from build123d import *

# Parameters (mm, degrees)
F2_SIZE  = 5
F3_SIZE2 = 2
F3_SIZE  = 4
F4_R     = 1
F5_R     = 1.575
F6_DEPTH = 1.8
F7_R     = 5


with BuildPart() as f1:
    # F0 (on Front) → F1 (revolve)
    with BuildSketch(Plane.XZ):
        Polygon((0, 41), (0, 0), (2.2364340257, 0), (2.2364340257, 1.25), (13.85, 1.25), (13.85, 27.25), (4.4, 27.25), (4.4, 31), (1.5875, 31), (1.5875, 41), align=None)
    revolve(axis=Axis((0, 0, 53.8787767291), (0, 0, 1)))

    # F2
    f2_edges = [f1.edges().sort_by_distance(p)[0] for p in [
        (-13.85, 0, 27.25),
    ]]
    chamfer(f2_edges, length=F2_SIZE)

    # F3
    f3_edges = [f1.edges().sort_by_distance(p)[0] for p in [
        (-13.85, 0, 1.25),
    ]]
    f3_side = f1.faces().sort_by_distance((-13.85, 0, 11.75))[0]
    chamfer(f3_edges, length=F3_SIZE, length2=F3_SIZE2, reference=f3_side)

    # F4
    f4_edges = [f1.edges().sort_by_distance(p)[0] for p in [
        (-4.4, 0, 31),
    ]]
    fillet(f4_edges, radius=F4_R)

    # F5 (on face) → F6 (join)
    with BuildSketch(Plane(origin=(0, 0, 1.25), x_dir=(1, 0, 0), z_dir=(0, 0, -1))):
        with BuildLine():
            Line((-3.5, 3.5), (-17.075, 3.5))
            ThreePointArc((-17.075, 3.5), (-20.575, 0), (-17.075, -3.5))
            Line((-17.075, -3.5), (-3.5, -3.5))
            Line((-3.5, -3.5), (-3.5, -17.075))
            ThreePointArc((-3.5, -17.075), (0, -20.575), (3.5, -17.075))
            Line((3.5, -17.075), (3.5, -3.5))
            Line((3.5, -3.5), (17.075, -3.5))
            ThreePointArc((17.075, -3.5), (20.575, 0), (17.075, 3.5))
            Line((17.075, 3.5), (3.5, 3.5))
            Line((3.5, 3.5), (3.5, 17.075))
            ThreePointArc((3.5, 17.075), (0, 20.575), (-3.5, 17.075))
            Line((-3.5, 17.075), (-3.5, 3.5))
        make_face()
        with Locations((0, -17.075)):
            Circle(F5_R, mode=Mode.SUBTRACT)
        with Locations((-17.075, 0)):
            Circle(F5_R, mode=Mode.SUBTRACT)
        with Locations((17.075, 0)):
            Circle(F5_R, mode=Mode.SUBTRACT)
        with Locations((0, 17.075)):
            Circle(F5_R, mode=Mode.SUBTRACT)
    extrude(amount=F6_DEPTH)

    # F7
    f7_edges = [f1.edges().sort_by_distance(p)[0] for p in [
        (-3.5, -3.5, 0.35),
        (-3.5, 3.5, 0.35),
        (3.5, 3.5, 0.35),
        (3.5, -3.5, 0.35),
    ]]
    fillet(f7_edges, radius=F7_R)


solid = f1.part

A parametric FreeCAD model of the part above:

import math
import FreeCAD as App
import Part
import Sketcher


def edges_at(feature, points):
    """Names of the edges that pass closest to the given points."""
    edges = feature.Shape.Edges
    near = lambda p: min(range(len(edges)), key=lambda i: edges[i].distToShape(Part.Vertex(*p))[0])
    return sorted({f"Edge{near(p) + 1}" for p in points})

doc = App.newDocument("Part")
params = doc.addObject("Spreadsheet::Sheet", "Params")
for row, (alias, value) in enumerate([
    ("sketch1_height", "41 mm"),
    ("sketch1_height2", "26 mm"),
    ("sketch1_height3", "10 mm"),
    ("sketch1_width", "9.45 mm"),
    ("sketch1_height4", "1.25 mm"),
    ("revolution_angle", "360 deg"),
    ("chamfer_size", "5 mm"),
    ("chamfer2_size", "4 mm"),
    ("chamfer2_size2", "2 mm"),
    ("fillet_radius", "1 mm"),
    ("sketch2_radius", "3.5 mm"),
    ("sketch2_diameter", "3.15 mm"),
    ("pad1_length", "1.8 mm"),
    ("fillet2_radius", "5 mm"),
], start=1):
    params.set(f"A{row}", alias)
    params.set(f"B{row}", "=" + value)
    params.setAlias(f"B{row}", alias)

body = doc.addObject("PartDesign::Body", "Body")

# Sketch on XZ plane
sketch1 = body.newObject("Sketcher::SketchObject", "Sketch")
sketch1.AttachmentSupport = (doc.getObject("XZ_Plane"), [""])
sketch1.MapMode = "FlatFace"
sketch1.addGeometry([
    Part.LineSegment(App.Vector(0, 41, 0), App.Vector(0, 0, 0)),  # 0
    Part.LineSegment(App.Vector(0, 0, 0), App.Vector(2.2, 0, 0)),  # 1
    Part.LineSegment(App.Vector(2.2, 0, 0), App.Vector(2.2, 1.2, 0)),  # 2
    Part.LineSegment(App.Vector(2.2, 1.2, 0), App.Vector(13.8, 1.2, 0)),  # 3
    Part.LineSegment(App.Vector(13.8, 1.2, 0), App.Vector(13.8, 27.2, 0)),  # 4
    Part.LineSegment(App.Vector(13.8, 27.2, 0), App.Vector(4.4, 27.2, 0)),  # 5
    Part.LineSegment(App.Vector(4.4, 27.2, 0), App.Vector(4.4, 31, 0)),  # 6
    Part.LineSegment(App.Vector(4.4, 31, 0), App.Vector(1.6, 31, 0)),  # 7
    Part.LineSegment(App.Vector(1.6, 31, 0), App.Vector(1.6, 41, 0)),  # 8
    Part.LineSegment(App.Vector(1.6, 41, 0), App.Vector(0, 41, 0)),  # 9
], False)
sketch1.addConstraint([
    Sketcher.Constraint("Coincident", 0, 2, 1, 1),
    Sketcher.Constraint("Coincident", 1, 2, 2, 1),
    Sketcher.Constraint("Coincident", 2, 2, 3, 1),
    Sketcher.Constraint("Coincident", 3, 2, 4, 1),
    Sketcher.Constraint("Coincident", 4, 2, 5, 1),
    Sketcher.Constraint("Coincident", 5, 2, 6, 1),
    Sketcher.Constraint("Coincident", 6, 2, 7, 1),
    Sketcher.Constraint("Coincident", 7, 2, 8, 1),
    Sketcher.Constraint("Coincident", 8, 2, 9, 1),
    Sketcher.Constraint("Coincident", 9, 2, 0, 1),
    Sketcher.Constraint("Vertical", 0),
    Sketcher.Constraint("Horizontal", 1),
    Sketcher.Constraint("Vertical", 2),
    Sketcher.Constraint("Horizontal", 3),
    Sketcher.Constraint("Vertical", 4),
    Sketcher.Constraint("Horizontal", 5),
    Sketcher.Constraint("Vertical", 6),
    Sketcher.Constraint("Horizontal", 7),
    Sketcher.Constraint("Vertical", 8),
    Sketcher.Constraint("Horizontal", 9),
    Sketcher.Constraint("Coincident", 0, 2, -1, 1),
    Sketcher.Constraint("DistanceY", 0, 2, 0, 1, 41.0),
    Sketcher.Constraint("DistanceY", 4, 1, 4, 2, 26.0),
    Sketcher.Constraint("DistanceY", 8, 1, 8, 2, 10.0),
    Sketcher.Constraint("DistanceX", 5, 2, 5, 1, 9.45),
    Sketcher.Constraint("DistanceY", 2, 1, 2, 2, 1.25),
    Sketcher.Constraint("DistanceX", -1, 1, 5, 2, 4.4),
    Sketcher.Constraint("DistanceX", 7, 2, 7, 1, 2.8125),
    Sketcher.Constraint("DistanceX", 1, 1, 1, 2, 2.236434),
])
sketch1.setExpression("Constraints[21]", "Params.sketch1_height")
sketch1.setExpression("Constraints[22]", "Params.sketch1_height2")
sketch1.setExpression("Constraints[23]", "Params.sketch1_height3")
sketch1.setExpression("Constraints[24]", "Params.sketch1_width")
sketch1.setExpression("Constraints[25]", "Params.sketch1_height4")
revolution = body.newObject("PartDesign::Revolution", "Revolution")
revolution.Profile = sketch1
revolution.ReferenceAxis = (sketch1, ["V_Axis"])
revolution.setExpression("Angle", "Params.revolution_angle")
doc.recompute()

chamfer = body.newObject("PartDesign::Chamfer", "Chamfer")
chamfer.Base = (revolution, edges_at(revolution, [(-13.85, 0, 27.25)]))
chamfer.setExpression("Size", "Params.chamfer_size")
doc.recompute()

chamfer2 = body.newObject("PartDesign::Chamfer", "Chamfer001")
chamfer2.Base = (chamfer, edges_at(chamfer, [(-13.85, 0, 1.25)]))
chamfer2.ChamferType = "Two distances"
chamfer2.setExpression("Size", "Params.chamfer2_size")
chamfer2.setExpression("Size2", "Params.chamfer2_size2")
doc.recompute()

fillet = body.newObject("PartDesign::Fillet", "Fillet")
fillet.Base = (chamfer2, edges_at(chamfer2, [(-4.4, 0, 31)]))
fillet.setExpression("Radius", "Params.fillet_radius")

# Sketch on XY plane
sketch2 = body.newObject("Sketcher::SketchObject", "Sketch001")
sketch2.AttachmentSupport = (doc.getObject("XY_Plane"), [""])
sketch2.MapMode = "FlatFace"
sketch2.AttachmentOffset = App.Placement(App.Vector(0, 0, 1.25), App.Rotation())
sketch2.addGeometry([
    Part.LineSegment(App.Vector(-3.5, -3.5, 0), App.Vector(-17.1, -3.5, 0)),  # 0
    Part.ArcOfCircle(Part.Circle(App.Vector(-17.1, 0, 0), App.Vector(0, 0, 1), 3.5), math.radians(90), math.radians(270)),  # 1
    Part.LineSegment(App.Vector(-17.1, 3.5, 0), App.Vector(-3.5, 3.5, 0)),  # 2
    Part.LineSegment(App.Vector(-3.5, 3.5, 0), App.Vector(-3.5, 17.1, 0)),  # 3
    Part.ArcOfCircle(Part.Circle(App.Vector(0, 17.1, 0), App.Vector(0, 0, 1), 3.5), math.radians(0), math.radians(180)),  # 4
    Part.LineSegment(App.Vector(3.5, 17.1, 0), App.Vector(3.5, 3.5, 0)),  # 5
    Part.LineSegment(App.Vector(3.5, 3.5, 0), App.Vector(17.1, 3.5, 0)),  # 6
    Part.ArcOfCircle(Part.Circle(App.Vector(17.1, 0, 0), App.Vector(0, 0, 1), 3.5), math.radians(-90), math.radians(90)),  # 7
    Part.LineSegment(App.Vector(17.1, -3.5, 0), App.Vector(3.5, -3.5, 0)),  # 8
    Part.LineSegment(App.Vector(3.5, -3.5, 0), App.Vector(3.5, -17.1, 0)),  # 9
    Part.ArcOfCircle(Part.Circle(App.Vector(0, -17.1, 0), App.Vector(0, 0, 1), 3.5), math.radians(180), math.radians(360)),  # 10
    Part.LineSegment(App.Vector(-3.5, -17.1, 0), App.Vector(-3.5, -3.5, 0)),  # 11
    Part.Circle(App.Vector(0, 17.1, 0), App.Vector(0, 0, 1), 1.6),  # 12
    Part.Circle(App.Vector(-17.1, 0, 0), App.Vector(0, 0, 1), 1.6),  # 13
    Part.Circle(App.Vector(17.1, 0, 0), App.Vector(0, 0, 1), 1.6),  # 14
    Part.Circle(App.Vector(0, -17.1, 0), App.Vector(0, 0, 1), 1.6),  # 15
], False)
sketch2.addConstraint([
    Sketcher.Constraint("Tangent", 0, 2, 1, 2),
    Sketcher.Constraint("Tangent", 1, 1, 2, 1),
    Sketcher.Constraint("Coincident", 2, 2, 3, 1),
    Sketcher.Constraint("Tangent", 3, 2, 4, 2),
    Sketcher.Constraint("Tangent", 4, 1, 5, 1),
    Sketcher.Constraint("Coincident", 5, 2, 6, 1),
    Sketcher.Constraint("Tangent", 6, 2, 7, 2),
    Sketcher.Constraint("Tangent", 7, 1, 8, 1),
    Sketcher.Constraint("Coincident", 8, 2, 9, 1),
    Sketcher.Constraint("Tangent", 9, 2, 10, 2),
    Sketcher.Constraint("Tangent", 10, 1, 11, 1),
    Sketcher.Constraint("Coincident", 11, 2, 0, 1),
    Sketcher.Constraint("Horizontal", 0),
    Sketcher.Constraint("Horizontal", 2),
    Sketcher.Constraint("Vertical", 3),
    Sketcher.Constraint("Vertical", 5),
    Sketcher.Constraint("Horizontal", 6),
    Sketcher.Constraint("Horizontal", 8),
    Sketcher.Constraint("Vertical", 9),
    Sketcher.Constraint("Vertical", 11),
    Sketcher.Constraint("Coincident", 12, 3, 4, 3),
    Sketcher.Constraint("Coincident", 13, 3, 1, 3),
    Sketcher.Constraint("Coincident", 14, 3, 7, 3),
    Sketcher.Constraint("Coincident", 15, 3, 10, 3),
    Sketcher.Constraint("Equal", 1, 4),
    Sketcher.Constraint("Equal", 4, 7),
    Sketcher.Constraint("Equal", 7, 10),
    Sketcher.Constraint("Equal", 12, 13),
    Sketcher.Constraint("Equal", 13, 14),
    Sketcher.Constraint("Equal", 14, 15),
    Sketcher.Constraint("Symmetric", 1, 3, 7, 3, -1, 1),
    Sketcher.Constraint("Symmetric", 4, 3, 10, 3, -1, 1),
    Sketcher.Constraint("Symmetric", 2, 2, 5, 2, -2),
    Sketcher.Constraint("Equal", 8, 3),
    Sketcher.Constraint("Radius", 1, 3.5),
    Sketcher.Constraint("Diameter", 12, 3.15),
    Sketcher.Constraint("DistanceX", 0, 2, 0, 1, 13.575),
])
sketch2.setExpression("Constraints[34]", "Params.sketch2_radius")
sketch2.setExpression("Constraints[35]", "Params.sketch2_diameter")
pad1 = body.newObject("PartDesign::Pad", "Pad")
pad1.Profile = sketch2
pad1.setExpression("Length", "Params.pad1_length")
pad1.Reversed = True
doc.recompute()

fillet2 = body.newObject("PartDesign::Fillet", "Fillet001")
fillet2.Base = (pad1, edges_at(pad1, [
    (-3.5, -3.5, 0.35),
    (-3.5, 3.5, 0.35),
    (3.5, 3.5, 0.35),
    (3.5, -3.5, 0.35),
]))
fillet2.setExpression("Radius", "Params.fillet2_radius")

doc.recompute()
